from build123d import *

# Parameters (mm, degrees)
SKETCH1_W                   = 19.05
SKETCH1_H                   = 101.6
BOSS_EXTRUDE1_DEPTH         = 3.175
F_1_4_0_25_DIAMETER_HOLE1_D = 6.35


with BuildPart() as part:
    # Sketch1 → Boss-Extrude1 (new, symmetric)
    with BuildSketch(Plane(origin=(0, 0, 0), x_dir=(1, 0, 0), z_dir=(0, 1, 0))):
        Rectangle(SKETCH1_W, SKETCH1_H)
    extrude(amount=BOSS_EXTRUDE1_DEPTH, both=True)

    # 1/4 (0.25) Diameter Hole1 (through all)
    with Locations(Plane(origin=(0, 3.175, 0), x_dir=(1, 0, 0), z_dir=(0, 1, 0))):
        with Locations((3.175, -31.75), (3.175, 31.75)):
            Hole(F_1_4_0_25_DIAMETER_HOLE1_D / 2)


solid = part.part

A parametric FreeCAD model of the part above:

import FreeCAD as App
import Part
import Sketcher
Q = App.Units.Quantity

doc = App.newDocument("Part")
body = doc.addObject("PartDesign::Body", "Body")

# Sketch on XZ plane
sketch1 = body.newObject("Sketcher::SketchObject", "Sketch")
sketch1.AttachmentSupport = (doc.getObject("XZ_Plane"), [""])
sketch1.MapMode = "FlatFace"
sketch1.addGeometry(Part.LineSegment(App.Vector(-10, -51, 0), App.Vector(-10, 51, 0)), False)
sketch1.addGeometry(Part.LineSegment(App.Vector(-10, 51, 0), App.Vector(10, 51, 0)), False)
sketch1.addGeometry(Part.LineSegment(App.Vector(10, 51, 0), App.Vector(10, -51, 0)), False)
sketch1.addGeometry(Part.LineSegment(App.Vector(10, -51, 0), App.Vector(-10, -51, 0)), False)
sketch1.addConstraint(Sketcher.Constraint("Coincident", 0, 2, 1, 1))
sketch1.addConstraint(Sketcher.Constraint("Coincident", 1, 2, 2, 1))
sketch1.addConstraint(Sketcher.Constraint("Coincident", 2, 2, 3, 1))
sketch1.addConstraint(Sketcher.Constraint("Coincident", 3, 2, 0, 1))
sketch1.addConstraint(Sketcher.Constraint("Vertical", 0))
sketch1.addConstraint(Sketcher.Constraint("Horizontal", 1))
sketch1.addConstraint(Sketcher.Constraint("Vertical", 2))
sketch1.addConstraint(Sketcher.Constraint("Horizontal", 3))
sketch1.addConstraint(Sketcher.Constraint("Symmetric", 0, 2, 2, 2, -1, 1))
sketch1.addConstraint(Sketcher.Constraint("DistanceY", 0, 1, 0, 2, Q("4 in")))
sketch1.addConstraint(Sketcher.Constraint("DistanceX", 1, 1, 1, 2, Q("0.75 in")))
pad1 = body.newObject("PartDesign::Pad", "Pad")
pad1.Profile = sketch1
pad1.Length = Q("0.25 in")
pad1.Midplane = True

# Sketch on XZ plane
sketch2 = body.newObject("Sketcher::SketchObject", "Sketch001")
sketch2.AttachmentSupport = (doc.getObject("XZ_Plane"), [""])
sketch2.MapMode = "FlatFace"
sketch2.AttachmentOffset = App.Placement(App.Vector(0, 0, -0.125 * 25.4), App.Rotation())
sketch2.addGeometry(Part.Circle(App.Vector(3.2, 31.8, 0), App.Vector(0, 0, 1), 3.2), False)
sketch2.addGeometry(Part.Circle(App.Vector(3.2, -31.8, 0), App.Vector(0, 0, 1), 3.2), False)
sketch2.addConstraint(Sketcher.Constraint("Equal", 0, 1))
sketch2.addConstraint(Sketcher.Constraint("Symmetric", 0, 3, 1, 3, -1))
sketch2.addConstraint(Sketcher.Constraint("Diameter", 0, Q("0.25 in")))
sketch2.addConstraint(Sketcher.Constraint("DistanceY", 1, 3, 0, 3, Q("2.5 in")))
sketch2.addConstraint(Sketcher.Constraint("DistanceX", -1, 1, 0, 3, Q("0.125 in")))
doc.recompute()
hole = body.newObject("PartDesign::Hole", "Hole")
hole.Profile = sketch2
hole.ThreadType = "None"
hole.Diameter = Q("0.25 in")
hole.DepthType = "ThroughAll"
hole.Reversed = True

doc.recompute()
